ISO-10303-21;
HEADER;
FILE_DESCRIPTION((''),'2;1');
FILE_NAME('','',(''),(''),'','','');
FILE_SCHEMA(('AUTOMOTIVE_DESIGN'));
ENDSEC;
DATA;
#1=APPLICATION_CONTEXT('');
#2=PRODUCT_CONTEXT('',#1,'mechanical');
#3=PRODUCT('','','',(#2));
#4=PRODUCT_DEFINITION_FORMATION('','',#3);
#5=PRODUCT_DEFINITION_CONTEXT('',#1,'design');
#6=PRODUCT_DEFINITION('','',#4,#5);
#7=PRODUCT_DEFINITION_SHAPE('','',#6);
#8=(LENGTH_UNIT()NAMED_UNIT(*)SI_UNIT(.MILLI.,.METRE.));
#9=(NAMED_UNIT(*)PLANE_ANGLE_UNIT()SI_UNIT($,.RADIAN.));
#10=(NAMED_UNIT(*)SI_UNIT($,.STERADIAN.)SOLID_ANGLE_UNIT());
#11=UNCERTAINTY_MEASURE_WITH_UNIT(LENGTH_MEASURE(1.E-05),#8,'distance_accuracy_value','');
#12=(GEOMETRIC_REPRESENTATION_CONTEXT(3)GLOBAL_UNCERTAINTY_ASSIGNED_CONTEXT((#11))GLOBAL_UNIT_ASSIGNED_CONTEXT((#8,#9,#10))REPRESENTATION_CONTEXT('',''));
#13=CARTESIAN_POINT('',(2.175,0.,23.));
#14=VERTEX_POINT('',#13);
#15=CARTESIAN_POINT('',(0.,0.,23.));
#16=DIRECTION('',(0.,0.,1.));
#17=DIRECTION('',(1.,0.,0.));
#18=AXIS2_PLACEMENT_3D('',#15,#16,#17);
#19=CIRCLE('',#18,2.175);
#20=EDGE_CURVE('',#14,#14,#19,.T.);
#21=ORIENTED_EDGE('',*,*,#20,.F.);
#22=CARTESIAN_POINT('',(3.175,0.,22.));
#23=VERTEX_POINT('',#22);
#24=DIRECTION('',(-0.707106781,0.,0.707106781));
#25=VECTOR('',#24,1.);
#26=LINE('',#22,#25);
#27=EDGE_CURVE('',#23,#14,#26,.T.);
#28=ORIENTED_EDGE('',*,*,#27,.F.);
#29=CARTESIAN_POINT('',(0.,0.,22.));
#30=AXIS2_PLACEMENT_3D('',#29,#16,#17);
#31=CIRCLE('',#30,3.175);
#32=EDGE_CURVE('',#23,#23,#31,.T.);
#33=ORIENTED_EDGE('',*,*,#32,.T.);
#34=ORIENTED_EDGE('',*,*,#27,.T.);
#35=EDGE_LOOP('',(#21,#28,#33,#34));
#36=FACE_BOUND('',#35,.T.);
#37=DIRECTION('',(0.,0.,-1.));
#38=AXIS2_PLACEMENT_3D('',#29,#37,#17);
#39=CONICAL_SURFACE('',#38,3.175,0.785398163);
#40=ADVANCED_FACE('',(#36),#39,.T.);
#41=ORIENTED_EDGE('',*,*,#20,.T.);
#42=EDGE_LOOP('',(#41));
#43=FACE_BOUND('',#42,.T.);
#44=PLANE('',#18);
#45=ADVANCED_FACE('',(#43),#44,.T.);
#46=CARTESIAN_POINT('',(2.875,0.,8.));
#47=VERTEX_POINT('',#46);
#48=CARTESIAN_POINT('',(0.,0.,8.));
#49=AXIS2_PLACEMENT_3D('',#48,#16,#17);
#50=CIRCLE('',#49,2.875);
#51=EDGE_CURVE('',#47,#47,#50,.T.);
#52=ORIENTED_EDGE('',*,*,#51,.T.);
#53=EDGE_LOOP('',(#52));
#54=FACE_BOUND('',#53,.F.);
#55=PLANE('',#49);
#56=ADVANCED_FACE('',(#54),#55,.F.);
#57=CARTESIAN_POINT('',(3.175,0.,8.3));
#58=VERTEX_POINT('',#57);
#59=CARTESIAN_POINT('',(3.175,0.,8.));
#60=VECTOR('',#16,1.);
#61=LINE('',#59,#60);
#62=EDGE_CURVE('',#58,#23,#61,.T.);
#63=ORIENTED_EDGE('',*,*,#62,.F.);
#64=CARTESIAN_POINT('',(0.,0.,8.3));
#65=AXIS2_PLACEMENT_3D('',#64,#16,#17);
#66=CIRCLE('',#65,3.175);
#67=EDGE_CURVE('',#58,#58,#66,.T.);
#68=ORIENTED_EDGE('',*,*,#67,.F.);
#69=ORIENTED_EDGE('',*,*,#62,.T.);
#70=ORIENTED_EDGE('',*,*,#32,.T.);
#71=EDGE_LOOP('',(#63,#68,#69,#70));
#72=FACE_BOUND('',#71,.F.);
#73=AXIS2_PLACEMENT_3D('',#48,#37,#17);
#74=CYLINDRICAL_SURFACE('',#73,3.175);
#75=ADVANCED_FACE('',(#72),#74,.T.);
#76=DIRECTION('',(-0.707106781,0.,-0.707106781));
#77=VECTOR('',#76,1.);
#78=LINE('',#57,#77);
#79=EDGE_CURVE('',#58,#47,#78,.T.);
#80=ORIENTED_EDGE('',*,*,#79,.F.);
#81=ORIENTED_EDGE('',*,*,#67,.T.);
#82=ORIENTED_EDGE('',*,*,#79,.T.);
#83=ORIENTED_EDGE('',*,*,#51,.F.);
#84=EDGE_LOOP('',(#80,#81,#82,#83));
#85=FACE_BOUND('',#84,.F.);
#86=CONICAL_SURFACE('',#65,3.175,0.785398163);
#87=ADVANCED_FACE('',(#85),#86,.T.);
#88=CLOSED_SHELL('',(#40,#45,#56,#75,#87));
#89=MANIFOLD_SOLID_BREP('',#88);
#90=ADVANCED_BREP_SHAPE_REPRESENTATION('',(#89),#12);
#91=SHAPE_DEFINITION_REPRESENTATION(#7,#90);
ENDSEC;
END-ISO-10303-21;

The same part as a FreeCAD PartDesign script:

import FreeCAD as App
import Part
import Sketcher
from FreeCAD import Vector
Q = App.Units.Quantity


def edges_at(feature, points):
    """Names of the edges that pass closest to the given points."""
    edges = feature.Shape.Edges
    near = lambda p: min(range(len(edges)), key=lambda i: edges[i].distToShape(Part.Vertex(*p))[0])
    return sorted({f"Edge{near(p) + 1}" for p in points})

doc = App.newDocument("Part")
body = doc.addObject("PartDesign::Body", "Body")

# Sketch on XY plane
sketch1 = body.newObject("Sketcher::SketchObject", "Sketch")
sketch1.AttachmentSupport = (doc.getObject("XY_Plane"), [""])
sketch1.MapMode = "FlatFace"
sketch1.addGeometry(Part.Circle(Vector(0, 0, 0), Vector(0, 0, 1), 3.2), False)
sketch1.addConstraint([
    Sketcher.Constraint("Coincident", 0, 3, -1, 1),
    Sketcher.Constraint("Diameter", 0, Q("6.35 mm")),
])
pad1 = body.newObject("PartDesign::Pad", "Pad")
pad1.Profile = sketch1
pad1.Length = 15
doc.recompute()

chamfer = body.newObject("PartDesign::Chamfer", "Chamfer")
chamfer.Base = (pad1, edges_at(pad1, [(-3.175, 0, 0)]))
chamfer.Size = 0.3
doc.recompute()

chamfer2 = body.newObject("PartDesign::Chamfer", "Chamfer001")
chamfer2.Base = (chamfer, edges_at(chamfer, [(-3.175, 0, 15)]))
chamfer2.Size = 1
body2 = doc.addObject("PartDesign::Body", "Body001")
doc.recompute()

body.Placement = App.Placement(Vector(0, 0, 8), App.Rotation(Vector(0, 0, 1), 0))
boolean = body2.newObject("PartDesign::Boolean", "Boolean")
boolean.Type = "Fuse"
boolean.addObjects([body])

doc.recompute()
